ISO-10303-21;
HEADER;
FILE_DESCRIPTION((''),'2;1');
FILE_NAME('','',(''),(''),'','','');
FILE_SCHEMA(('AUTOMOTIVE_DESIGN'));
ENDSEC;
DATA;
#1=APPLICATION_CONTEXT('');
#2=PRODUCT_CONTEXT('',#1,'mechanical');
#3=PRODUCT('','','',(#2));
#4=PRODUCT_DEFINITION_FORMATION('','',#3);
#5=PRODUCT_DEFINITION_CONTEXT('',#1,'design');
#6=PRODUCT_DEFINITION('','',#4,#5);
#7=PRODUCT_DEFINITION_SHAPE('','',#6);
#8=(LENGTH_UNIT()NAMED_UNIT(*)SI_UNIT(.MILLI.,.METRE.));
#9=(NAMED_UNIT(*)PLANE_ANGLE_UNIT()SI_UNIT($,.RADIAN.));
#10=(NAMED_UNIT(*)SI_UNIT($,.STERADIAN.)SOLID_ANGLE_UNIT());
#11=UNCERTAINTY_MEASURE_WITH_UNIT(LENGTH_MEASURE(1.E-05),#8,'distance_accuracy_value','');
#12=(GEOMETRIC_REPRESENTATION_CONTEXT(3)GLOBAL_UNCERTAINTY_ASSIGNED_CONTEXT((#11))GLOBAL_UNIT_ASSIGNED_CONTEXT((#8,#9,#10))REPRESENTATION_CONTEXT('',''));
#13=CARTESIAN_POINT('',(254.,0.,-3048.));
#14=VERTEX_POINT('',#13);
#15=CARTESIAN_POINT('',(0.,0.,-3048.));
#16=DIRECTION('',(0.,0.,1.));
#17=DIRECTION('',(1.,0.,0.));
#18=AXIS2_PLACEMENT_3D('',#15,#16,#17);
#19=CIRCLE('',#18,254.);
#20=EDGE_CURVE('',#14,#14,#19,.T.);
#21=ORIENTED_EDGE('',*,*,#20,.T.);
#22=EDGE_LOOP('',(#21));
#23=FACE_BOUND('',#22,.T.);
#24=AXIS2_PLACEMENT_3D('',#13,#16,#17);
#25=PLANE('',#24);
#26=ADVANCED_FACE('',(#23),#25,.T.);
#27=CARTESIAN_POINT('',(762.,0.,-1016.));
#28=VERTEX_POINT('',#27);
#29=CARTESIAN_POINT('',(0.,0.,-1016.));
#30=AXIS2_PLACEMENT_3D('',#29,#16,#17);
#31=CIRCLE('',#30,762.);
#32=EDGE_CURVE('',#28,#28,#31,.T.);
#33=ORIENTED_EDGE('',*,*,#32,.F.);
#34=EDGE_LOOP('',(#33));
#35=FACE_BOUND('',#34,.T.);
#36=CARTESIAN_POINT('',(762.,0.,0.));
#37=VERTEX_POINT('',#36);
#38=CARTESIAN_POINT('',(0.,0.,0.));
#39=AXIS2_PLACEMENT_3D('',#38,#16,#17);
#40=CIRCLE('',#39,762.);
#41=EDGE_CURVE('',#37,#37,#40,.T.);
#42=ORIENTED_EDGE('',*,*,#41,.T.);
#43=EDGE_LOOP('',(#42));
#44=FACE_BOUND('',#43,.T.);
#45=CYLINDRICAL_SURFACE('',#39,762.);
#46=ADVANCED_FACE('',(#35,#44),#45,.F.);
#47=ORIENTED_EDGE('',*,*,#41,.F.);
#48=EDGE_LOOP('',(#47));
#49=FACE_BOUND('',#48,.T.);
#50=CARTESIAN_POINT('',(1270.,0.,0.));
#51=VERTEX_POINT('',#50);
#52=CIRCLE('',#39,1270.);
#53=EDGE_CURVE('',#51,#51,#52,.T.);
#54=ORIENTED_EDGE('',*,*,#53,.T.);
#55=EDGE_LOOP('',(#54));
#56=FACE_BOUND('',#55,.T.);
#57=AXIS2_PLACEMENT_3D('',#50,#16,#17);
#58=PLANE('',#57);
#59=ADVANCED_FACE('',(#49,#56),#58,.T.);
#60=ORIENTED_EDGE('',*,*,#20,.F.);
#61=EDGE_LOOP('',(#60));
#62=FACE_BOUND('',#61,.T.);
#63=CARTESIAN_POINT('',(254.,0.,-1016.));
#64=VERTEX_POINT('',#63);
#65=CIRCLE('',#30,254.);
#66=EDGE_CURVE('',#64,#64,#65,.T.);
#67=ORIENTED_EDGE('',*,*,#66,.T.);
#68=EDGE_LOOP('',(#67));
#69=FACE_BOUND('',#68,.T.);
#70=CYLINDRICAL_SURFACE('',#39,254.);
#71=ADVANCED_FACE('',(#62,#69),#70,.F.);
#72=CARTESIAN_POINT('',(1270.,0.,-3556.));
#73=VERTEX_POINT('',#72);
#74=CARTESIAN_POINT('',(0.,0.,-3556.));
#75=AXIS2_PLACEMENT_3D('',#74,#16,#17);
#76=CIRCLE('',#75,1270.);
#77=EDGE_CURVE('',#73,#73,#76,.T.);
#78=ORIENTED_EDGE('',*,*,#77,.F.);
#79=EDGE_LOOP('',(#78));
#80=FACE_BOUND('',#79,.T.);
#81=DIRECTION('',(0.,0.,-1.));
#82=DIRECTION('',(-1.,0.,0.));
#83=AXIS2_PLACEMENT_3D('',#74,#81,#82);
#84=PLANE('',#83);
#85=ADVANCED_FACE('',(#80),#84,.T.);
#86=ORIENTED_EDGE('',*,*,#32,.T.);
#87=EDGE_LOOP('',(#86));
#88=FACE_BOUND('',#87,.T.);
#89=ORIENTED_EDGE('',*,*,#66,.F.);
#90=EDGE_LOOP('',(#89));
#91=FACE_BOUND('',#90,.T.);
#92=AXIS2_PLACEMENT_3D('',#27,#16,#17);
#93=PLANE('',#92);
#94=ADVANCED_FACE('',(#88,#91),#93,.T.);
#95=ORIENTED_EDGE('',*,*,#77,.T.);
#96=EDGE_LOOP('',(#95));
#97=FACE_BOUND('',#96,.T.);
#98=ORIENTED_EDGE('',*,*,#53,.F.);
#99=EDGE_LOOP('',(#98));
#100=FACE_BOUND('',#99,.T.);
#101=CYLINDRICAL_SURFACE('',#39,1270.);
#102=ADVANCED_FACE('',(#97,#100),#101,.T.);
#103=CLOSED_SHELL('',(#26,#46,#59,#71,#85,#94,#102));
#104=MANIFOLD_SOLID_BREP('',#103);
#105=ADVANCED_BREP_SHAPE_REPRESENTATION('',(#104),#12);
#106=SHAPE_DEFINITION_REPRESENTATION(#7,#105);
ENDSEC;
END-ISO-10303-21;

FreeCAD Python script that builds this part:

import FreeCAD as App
import Part
import Sketcher
from FreeCAD import Vector
Q = App.Units.Quantity


def add_polygon(sketch, points):
    """Adds a closed chain of lines whose ends are joined by coincident constraints."""
    first, n = sketch.GeometryCount, len(points)
    for a, b in zip(points, points[1:] + points[:1]):
        sketch.addGeometry(Part.LineSegment(App.Vector(*a, 0), App.Vector(*b, 0)), False)
    for i in range(n):
        sketch.addConstraint(Sketcher.Constraint("Coincident", first + i, 2, first + (i + 1) % n, 1))

doc = App.newDocument("Part")
body = doc.addObject("PartDesign::Body", "Body")

sketch1 = body.newObject("Sketcher::SketchObject", "Sketch")
sketch1.AttachmentSupport = (doc.getObject("XZ_Plane"), [""])
sketch1.MapMode = "FlatFace"
add_polygon(sketch1, [(1270, -3556), (0, -3556), (0, -3048), (254, -3048), (254, -1016), (762, -1016), (762, 0), (1270, 0)])
sketch1.addConstraint([
    Sketcher.Constraint("Horizontal", 0),
    Sketcher.Constraint("Vertical", 1),
    Sketcher.Constraint("Horizontal", 2),
    Sketcher.Constraint("Vertical", 3),
    Sketcher.Constraint("Horizontal", 4),
    Sketcher.Constraint("Vertical", 5),
    Sketcher.Constraint("Horizontal", 6),
    Sketcher.Constraint("Vertical", 7),
    Sketcher.Constraint("PointOnObject", 0, 2, -2),
    Sketcher.Constraint("PointOnObject", 5, 2, -1),
    Sketcher.Constraint("Equal", 4, 6),
    Sketcher.Constraint("Equal", 6, 1),
    Sketcher.Constraint("DistanceX", 0, 2, 0, 1, Q("50 in")),
    Sketcher.Constraint("DistanceX", 2, 1, 2, 2, Q("10 in")),
    Sketcher.Constraint("DistanceY", 3, 1, 3, 2, Q("80 in")),
    Sketcher.Constraint("DistanceY", 5, 1, 5, 2, Q("40 in")),
])
revolution = body.newObject("PartDesign::Revolution", "Revolution")
revolution.Profile = sketch1
revolution.ReferenceAxis = (sketch1, ["V_Axis"])
revolution.Angle = 360

doc.recompute()
